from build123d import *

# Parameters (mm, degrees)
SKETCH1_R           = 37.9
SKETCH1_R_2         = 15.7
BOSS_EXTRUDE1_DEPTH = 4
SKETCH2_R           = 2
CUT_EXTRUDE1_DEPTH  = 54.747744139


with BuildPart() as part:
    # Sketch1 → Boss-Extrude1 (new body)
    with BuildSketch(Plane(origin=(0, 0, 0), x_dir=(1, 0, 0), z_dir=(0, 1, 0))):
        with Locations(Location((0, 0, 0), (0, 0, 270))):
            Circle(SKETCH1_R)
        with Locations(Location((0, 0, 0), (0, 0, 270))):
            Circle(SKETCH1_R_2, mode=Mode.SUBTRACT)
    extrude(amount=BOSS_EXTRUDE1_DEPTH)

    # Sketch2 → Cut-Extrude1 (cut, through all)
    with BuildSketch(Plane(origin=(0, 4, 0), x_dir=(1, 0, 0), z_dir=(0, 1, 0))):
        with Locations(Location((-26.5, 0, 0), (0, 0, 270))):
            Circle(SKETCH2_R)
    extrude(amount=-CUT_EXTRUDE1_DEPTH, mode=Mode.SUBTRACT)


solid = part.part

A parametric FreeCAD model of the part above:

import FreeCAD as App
import Part
import Sketcher

doc = App.newDocument("Part")
body = doc.addObject("PartDesign::Body", "Body")

sketch1 = body.newObject("Sketcher::SketchObject", "Sketch")
sketch1.AttachmentSupport = (doc.getObject("XZ_Plane"), [""])
sketch1.MapMode = "FlatFace"
sketch1.addGeometry(Part.Circle(App.Vector(0, 0, 0), App.Vector(0, 0, 1), 38), False)
sketch1.addGeometry(Part.Circle(App.Vector(0, 0, 0), App.Vector(0, 0, 1), 16), False)
sketch1.addConstraint(Sketcher.Constraint("Coincident", 0, 3, -1, 1))
sketch1.addConstraint(Sketcher.Constraint("Coincident", 1, 3, -1, 1))
sketch1.addConstraint(Sketcher.Constraint("Diameter", 0, 75.8))
sketch1.addConstraint(Sketcher.Constraint("Diameter", 1, 31.4))
pad1 = body.newObject("PartDesign::Pad", "Pad")
pad1.Profile = sketch1
pad1.Length = 4
pad1.Reversed = True

sketch2 = body.newObject("Sketcher::SketchObject", "Sketch001")
sketch2.AttachmentSupport = (doc.getObject("XZ_Plane"), [""])
sketch2.MapMode = "FlatFace"
sketch2.AttachmentOffset = App.Placement(App.Vector(0, 0, -4), App.Rotation())
sketch2.addGeometry(Part.Circle(App.Vector(-26.5, 0, 0), App.Vector(0, 0, 1), 2), False)
sketch2.addConstraint(Sketcher.Constraint("PointOnObject", 0, 3, -1))
sketch2.addConstraint(Sketcher.Constraint("Diameter", 0, 4.0))
sketch2.addConstraint(Sketcher.Constraint("DistanceX", 0, 3, -1, 1, 26.5))
pocket1 = body.newObject("PartDesign::Pocket", "Pocket")
pocket1.Profile = sketch2
pocket1.Type = "ThroughAll"
pocket1.Reversed = True

doc.recompute()
